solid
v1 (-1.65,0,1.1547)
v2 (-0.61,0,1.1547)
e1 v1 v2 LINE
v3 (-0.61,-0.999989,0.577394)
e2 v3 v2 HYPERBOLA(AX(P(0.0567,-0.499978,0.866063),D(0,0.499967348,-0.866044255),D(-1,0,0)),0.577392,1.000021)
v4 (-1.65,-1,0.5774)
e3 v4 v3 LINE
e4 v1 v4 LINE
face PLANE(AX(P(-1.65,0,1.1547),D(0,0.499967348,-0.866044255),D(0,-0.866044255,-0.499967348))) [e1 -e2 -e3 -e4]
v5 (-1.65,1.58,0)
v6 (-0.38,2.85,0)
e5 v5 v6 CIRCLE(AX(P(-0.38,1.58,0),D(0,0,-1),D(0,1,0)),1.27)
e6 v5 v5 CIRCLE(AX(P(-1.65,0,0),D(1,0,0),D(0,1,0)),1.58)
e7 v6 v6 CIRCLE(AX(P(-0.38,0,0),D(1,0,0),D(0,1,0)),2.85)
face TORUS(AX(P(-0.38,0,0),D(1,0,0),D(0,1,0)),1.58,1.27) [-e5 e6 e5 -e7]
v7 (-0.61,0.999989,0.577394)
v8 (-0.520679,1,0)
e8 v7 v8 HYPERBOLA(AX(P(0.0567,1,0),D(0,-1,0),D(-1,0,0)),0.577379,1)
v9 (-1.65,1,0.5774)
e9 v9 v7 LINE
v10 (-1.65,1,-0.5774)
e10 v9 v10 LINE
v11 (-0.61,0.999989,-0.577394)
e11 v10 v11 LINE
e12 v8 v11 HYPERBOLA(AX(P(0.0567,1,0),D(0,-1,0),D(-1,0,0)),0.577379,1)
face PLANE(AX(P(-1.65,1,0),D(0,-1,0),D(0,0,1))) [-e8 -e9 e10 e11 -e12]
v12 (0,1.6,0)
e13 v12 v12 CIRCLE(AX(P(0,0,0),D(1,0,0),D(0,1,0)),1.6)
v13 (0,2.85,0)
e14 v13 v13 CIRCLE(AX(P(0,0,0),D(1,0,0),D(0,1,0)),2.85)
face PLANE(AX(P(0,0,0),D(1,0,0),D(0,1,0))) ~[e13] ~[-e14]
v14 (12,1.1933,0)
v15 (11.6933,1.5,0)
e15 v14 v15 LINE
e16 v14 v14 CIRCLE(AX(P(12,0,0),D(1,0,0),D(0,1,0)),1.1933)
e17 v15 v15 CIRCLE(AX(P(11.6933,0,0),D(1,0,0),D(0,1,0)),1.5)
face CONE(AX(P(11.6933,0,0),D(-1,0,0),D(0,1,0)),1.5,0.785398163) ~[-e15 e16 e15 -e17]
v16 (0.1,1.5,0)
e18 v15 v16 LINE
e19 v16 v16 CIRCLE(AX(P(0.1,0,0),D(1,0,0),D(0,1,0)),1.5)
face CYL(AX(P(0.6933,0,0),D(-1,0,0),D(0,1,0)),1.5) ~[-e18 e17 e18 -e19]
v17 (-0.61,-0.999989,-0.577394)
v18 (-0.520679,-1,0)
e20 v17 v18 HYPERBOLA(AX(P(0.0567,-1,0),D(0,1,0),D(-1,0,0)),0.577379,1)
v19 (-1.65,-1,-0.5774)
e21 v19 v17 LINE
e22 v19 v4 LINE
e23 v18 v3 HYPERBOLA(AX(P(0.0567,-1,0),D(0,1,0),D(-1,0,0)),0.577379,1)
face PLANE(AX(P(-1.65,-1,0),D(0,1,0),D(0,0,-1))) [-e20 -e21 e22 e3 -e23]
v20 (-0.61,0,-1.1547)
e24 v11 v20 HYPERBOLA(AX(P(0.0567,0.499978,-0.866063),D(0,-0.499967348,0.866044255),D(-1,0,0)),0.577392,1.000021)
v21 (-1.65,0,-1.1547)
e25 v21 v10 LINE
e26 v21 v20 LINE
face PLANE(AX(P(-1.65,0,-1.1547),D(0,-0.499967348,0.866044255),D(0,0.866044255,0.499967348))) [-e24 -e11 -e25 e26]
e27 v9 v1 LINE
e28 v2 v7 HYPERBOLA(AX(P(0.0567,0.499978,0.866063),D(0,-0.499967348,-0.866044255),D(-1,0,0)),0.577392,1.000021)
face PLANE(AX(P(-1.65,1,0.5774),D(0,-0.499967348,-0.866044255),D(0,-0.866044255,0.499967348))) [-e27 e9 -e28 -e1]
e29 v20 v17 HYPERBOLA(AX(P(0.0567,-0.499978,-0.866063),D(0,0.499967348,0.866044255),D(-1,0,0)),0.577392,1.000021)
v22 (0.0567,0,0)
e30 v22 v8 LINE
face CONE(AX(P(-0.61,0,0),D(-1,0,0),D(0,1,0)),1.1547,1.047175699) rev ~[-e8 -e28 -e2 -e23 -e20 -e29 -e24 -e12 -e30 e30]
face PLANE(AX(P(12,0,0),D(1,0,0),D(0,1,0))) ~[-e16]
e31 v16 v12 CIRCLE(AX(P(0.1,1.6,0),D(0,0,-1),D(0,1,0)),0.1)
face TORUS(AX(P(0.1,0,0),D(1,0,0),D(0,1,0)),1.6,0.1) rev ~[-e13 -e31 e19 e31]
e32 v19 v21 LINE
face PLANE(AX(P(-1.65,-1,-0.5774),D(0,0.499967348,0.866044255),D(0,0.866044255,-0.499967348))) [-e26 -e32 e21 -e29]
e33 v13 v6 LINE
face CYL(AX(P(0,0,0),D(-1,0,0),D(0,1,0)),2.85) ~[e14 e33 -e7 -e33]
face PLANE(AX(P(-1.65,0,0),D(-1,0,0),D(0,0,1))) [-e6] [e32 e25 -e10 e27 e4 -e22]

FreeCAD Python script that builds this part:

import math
import FreeCAD as App
import Part
import Sketcher
Q = App.Units.Quantity


def edges_at(feature, points):
    """Names of the edges that pass closest to the given points."""
    edges = feature.Shape.Edges
    near = lambda p: min(range(len(edges)), key=lambda i: edges[i].distToShape(Part.Vertex(*p))[0])
    return sorted({f"Edge{near(p) + 1}" for p in points})

doc = App.newDocument("Part")
body = doc.addObject("PartDesign::Body", "Body")

# Sketch on XY plane
sketch1 = body.newObject("Sketcher::SketchObject", "Sketch")
sketch1.AttachmentSupport = (doc.getObject("XY_Plane"), [""])
sketch1.MapMode = "FlatFace"
sketch1.addGeometry([
    Part.LineSegment(App.Vector(0.1, 0, 0), App.Vector(12, 0, 0)),  # 0
    Part.LineSegment(App.Vector(12, 0, 0), App.Vector(12, 1.5, 0)),  # 1
    Part.LineSegment(App.Vector(12, 1.5, 0), App.Vector(0, 1.5, 0)),  # 2
    Part.LineSegment(App.Vector(0, 1.5, 0), App.Vector(0, 2.9, 0)),  # 3
    Part.LineSegment(App.Vector(0, 2.9, 0), App.Vector(-1.6, 2.9, 0)),  # 4
    Part.LineSegment(App.Vector(-1.6, 2.9, 0), App.Vector(-1.6, 1.2, 0)),  # 5
    Part.LineSegment(App.Vector(-1.6, 1.2, 0), App.Vector(-0.6, 1.2, 0)),  # 6
    Part.LineSegment(App.Vector(-0.6, 1.2, 0), App.Vector(0.1, 0, 0)),  # 7
], False)
sketch1.addConstraint([
    Sketcher.Constraint("Coincident", 0, 2, 1, 1),
    Sketcher.Constraint("Coincident", 1, 2, 2, 1),
    Sketcher.Constraint("Coincident", 2, 2, 3, 1),
    Sketcher.Constraint("Coincident", 3, 2, 4, 1),
    Sketcher.Constraint("Coincident", 4, 2, 5, 1),
    Sketcher.Constraint("Coincident", 5, 2, 6, 1),
    Sketcher.Constraint("Coincident", 6, 2, 7, 1),
    Sketcher.Constraint("Coincident", 7, 2, 0, 1),
    Sketcher.Constraint("Horizontal", 0),
    Sketcher.Constraint("Vertical", 1),
    Sketcher.Constraint("Horizontal", 2),
    Sketcher.Constraint("Vertical", 3),
    Sketcher.Constraint("Horizontal", 4),
    Sketcher.Constraint("Vertical", 5),
    Sketcher.Constraint("Horizontal", 6),
    Sketcher.Constraint("PointOnObject", 0, 2, -1),
    Sketcher.Constraint("PointOnObject", 2, 2, -2),
    Sketcher.Constraint("DistanceX", 2, 2, 2, 1, Q("12 mm")),
    Sketcher.Constraint("DistanceX", 4, 2, 4, 1, Q("1.65 mm")),
    Sketcher.Constraint("DistanceX", 6, 1, 6, 2, Q("1.04 mm")),
    Sketcher.Constraint("DistanceY", 1, 1, 1, 2, Q("1.5 mm")),
    Sketcher.Constraint("DistanceY", 3, 1, 3, 2, Q("1.35 mm")),
    Sketcher.Constraint("DistanceX", 0, 1, 0, 2, Q("11.9433 mm")),
    Sketcher.Constraint("DistanceY", 5, 2, 5, 1, Q("1.6953 mm")),
])
revolution = body.newObject("PartDesign::Revolution", "Revolution")
revolution.Profile = sketch1
revolution.ReferenceAxis = (sketch1, ["H_Axis"])
revolution.Angle = 360

# Sketch on YZ plane
sketch2 = body.newObject("Sketcher::SketchObject", "Sketch001")
sketch2.AttachmentSupport = (doc.getObject("YZ_Plane"), [""])
sketch2.MapMode = "FlatFace"
sketch2.AttachmentOffset = App.Placement(App.Vector(0, 0, -1.65), App.Rotation())
sketch2.addGeometry([
    Part.LineSegment(App.Vector(1, 0.6, 0), App.Vector(0, 1.2, 0)),  # 0
    Part.ArcOfCircle(Part.Circle(App.Vector(0, 0, 0), App.Vector(0, 0, 1), 1.2), math.radians(30), math.radians(90)),  # 1
    Part.ArcOfCircle(Part.Circle(App.Vector(0, 0, 0), App.Vector(0, 0, 1), 1.2), math.radians(90), math.radians(150)),  # 2
    Part.LineSegment(App.Vector(0, 1.2, 0), App.Vector(-1, 0.6, 0)),  # 3
    Part.ArcOfCircle(Part.Circle(App.Vector(0, 0, 0), App.Vector(0, 0, 1), 1.2), math.radians(-30), math.radians(30)),  # 4
    Part.LineSegment(App.Vector(1, 0.6, 0), App.Vector(1, -0.6, 0)),  # 5
    Part.LineSegment(App.Vector(-1, 0.6, 0), App.Vector(-1, -0.6, 0)),  # 6
    Part.ArcOfCircle(Part.Circle(App.Vector(0, 0, 0), App.Vector(0, 0, 1), 1.2), math.radians(150), math.radians(210)),  # 7
    Part.LineSegment(App.Vector(-1, -0.6, 0), App.Vector(0, -1.2, 0)),  # 8
    Part.ArcOfCircle(Part.Circle(App.Vector(0, 0, 0), App.Vector(0, 0, 1), 1.2), math.radians(-150), math.radians(-90)),  # 9
    Part.ArcOfCircle(Part.Circle(App.Vector(0, 0, 0), App.Vector(0, 0, 1), 1.2), math.radians(-90), math.radians(-30)),  # 10
    Part.LineSegment(App.Vector(0, -1.2, 0), App.Vector(1, -0.6, 0)),  # 11
], False)
sketch2.addConstraint([
    Sketcher.Constraint("Coincident", 0, 1, 1, 1),
    Sketcher.Constraint("Coincident", 1, 2, 0, 2),
    Sketcher.Constraint("Coincident", 2, 1, 3, 1),
    Sketcher.Constraint("Coincident", 3, 2, 2, 2),
    Sketcher.Constraint("Coincident", 4, 1, 5, 2),
    Sketcher.Constraint("Coincident", 5, 1, 4, 2),
    Sketcher.Constraint("Coincident", 6, 1, 7, 1),
    Sketcher.Constraint("Coincident", 7, 2, 6, 2),
    Sketcher.Constraint("Coincident", 8, 1, 9, 1),
    Sketcher.Constraint("Coincident", 9, 2, 8, 2),
    Sketcher.Constraint("Coincident", 10, 1, 11, 1),
    Sketcher.Constraint("Coincident", 11, 2, 10, 2),
    Sketcher.Constraint("Vertical", 5),
    Sketcher.Constraint("Vertical", 6),
    Sketcher.Constraint("Coincident", 1, 3, -1, 1),
    Sketcher.Constraint("Coincident", 2, 3, -1, 1),
    Sketcher.Constraint("Coincident", 4, 3, -1, 1),
    Sketcher.Constraint("Coincident", 7, 3, -1, 1),
    Sketcher.Constraint("Coincident", 9, 3, -1, 1),
    Sketcher.Constraint("Coincident", 10, 3, -1, 1),
    Sketcher.Constraint("Coincident", 2, 1, 1, 2),
    Sketcher.Constraint("Coincident", 5, 1, 0, 1),
    Sketcher.Constraint("Coincident", 6, 1, 3, 2),
    Sketcher.Constraint("Coincident", 8, 1, 7, 2),
    Sketcher.Constraint("Coincident", 10, 1, 9, 2),
    Sketcher.Constraint("PointOnObject", 1, 2, -2),
    Sketcher.Constraint("PointOnObject", 9, 2, -2),
    Sketcher.Constraint("Parallel", 0, 8),
    Sketcher.Constraint("Parallel", 3, 11),
    Sketcher.Constraint("DistanceX", -1, 1, 0, 1, Q("1 mm")),
    Sketcher.Constraint("Radius", 1, Q("1.1547 mm")),
])
pad1 = body.newObject("PartDesign::Pad", "Pad")
pad1.Profile = sketch2
pad1.Type = "UpToFirst"
doc.recompute()

fillet = body.newObject("PartDesign::Fillet", "Fillet")
fillet.Base = (pad1, edges_at(pad1, [(-1.65, -2.85, 0)]))
fillet.Radius = 1.27
doc.recompute()

chamfer = body.newObject("PartDesign::Chamfer", "Chamfer")
chamfer.Base = (fillet, edges_at(fillet, [(12, -1.5, 0)]))
chamfer.ChamferType = "Two distances"
chamfer.Size = 0.3067
chamfer.Size2 = 0.3067
doc.recompute()

fillet2 = body.newObject("PartDesign::Fillet", "Fillet001")
fillet2.Base = (chamfer, edges_at(chamfer, [(0, -1.5, 0)]))
fillet2.Radius = 0.1

doc.recompute()
